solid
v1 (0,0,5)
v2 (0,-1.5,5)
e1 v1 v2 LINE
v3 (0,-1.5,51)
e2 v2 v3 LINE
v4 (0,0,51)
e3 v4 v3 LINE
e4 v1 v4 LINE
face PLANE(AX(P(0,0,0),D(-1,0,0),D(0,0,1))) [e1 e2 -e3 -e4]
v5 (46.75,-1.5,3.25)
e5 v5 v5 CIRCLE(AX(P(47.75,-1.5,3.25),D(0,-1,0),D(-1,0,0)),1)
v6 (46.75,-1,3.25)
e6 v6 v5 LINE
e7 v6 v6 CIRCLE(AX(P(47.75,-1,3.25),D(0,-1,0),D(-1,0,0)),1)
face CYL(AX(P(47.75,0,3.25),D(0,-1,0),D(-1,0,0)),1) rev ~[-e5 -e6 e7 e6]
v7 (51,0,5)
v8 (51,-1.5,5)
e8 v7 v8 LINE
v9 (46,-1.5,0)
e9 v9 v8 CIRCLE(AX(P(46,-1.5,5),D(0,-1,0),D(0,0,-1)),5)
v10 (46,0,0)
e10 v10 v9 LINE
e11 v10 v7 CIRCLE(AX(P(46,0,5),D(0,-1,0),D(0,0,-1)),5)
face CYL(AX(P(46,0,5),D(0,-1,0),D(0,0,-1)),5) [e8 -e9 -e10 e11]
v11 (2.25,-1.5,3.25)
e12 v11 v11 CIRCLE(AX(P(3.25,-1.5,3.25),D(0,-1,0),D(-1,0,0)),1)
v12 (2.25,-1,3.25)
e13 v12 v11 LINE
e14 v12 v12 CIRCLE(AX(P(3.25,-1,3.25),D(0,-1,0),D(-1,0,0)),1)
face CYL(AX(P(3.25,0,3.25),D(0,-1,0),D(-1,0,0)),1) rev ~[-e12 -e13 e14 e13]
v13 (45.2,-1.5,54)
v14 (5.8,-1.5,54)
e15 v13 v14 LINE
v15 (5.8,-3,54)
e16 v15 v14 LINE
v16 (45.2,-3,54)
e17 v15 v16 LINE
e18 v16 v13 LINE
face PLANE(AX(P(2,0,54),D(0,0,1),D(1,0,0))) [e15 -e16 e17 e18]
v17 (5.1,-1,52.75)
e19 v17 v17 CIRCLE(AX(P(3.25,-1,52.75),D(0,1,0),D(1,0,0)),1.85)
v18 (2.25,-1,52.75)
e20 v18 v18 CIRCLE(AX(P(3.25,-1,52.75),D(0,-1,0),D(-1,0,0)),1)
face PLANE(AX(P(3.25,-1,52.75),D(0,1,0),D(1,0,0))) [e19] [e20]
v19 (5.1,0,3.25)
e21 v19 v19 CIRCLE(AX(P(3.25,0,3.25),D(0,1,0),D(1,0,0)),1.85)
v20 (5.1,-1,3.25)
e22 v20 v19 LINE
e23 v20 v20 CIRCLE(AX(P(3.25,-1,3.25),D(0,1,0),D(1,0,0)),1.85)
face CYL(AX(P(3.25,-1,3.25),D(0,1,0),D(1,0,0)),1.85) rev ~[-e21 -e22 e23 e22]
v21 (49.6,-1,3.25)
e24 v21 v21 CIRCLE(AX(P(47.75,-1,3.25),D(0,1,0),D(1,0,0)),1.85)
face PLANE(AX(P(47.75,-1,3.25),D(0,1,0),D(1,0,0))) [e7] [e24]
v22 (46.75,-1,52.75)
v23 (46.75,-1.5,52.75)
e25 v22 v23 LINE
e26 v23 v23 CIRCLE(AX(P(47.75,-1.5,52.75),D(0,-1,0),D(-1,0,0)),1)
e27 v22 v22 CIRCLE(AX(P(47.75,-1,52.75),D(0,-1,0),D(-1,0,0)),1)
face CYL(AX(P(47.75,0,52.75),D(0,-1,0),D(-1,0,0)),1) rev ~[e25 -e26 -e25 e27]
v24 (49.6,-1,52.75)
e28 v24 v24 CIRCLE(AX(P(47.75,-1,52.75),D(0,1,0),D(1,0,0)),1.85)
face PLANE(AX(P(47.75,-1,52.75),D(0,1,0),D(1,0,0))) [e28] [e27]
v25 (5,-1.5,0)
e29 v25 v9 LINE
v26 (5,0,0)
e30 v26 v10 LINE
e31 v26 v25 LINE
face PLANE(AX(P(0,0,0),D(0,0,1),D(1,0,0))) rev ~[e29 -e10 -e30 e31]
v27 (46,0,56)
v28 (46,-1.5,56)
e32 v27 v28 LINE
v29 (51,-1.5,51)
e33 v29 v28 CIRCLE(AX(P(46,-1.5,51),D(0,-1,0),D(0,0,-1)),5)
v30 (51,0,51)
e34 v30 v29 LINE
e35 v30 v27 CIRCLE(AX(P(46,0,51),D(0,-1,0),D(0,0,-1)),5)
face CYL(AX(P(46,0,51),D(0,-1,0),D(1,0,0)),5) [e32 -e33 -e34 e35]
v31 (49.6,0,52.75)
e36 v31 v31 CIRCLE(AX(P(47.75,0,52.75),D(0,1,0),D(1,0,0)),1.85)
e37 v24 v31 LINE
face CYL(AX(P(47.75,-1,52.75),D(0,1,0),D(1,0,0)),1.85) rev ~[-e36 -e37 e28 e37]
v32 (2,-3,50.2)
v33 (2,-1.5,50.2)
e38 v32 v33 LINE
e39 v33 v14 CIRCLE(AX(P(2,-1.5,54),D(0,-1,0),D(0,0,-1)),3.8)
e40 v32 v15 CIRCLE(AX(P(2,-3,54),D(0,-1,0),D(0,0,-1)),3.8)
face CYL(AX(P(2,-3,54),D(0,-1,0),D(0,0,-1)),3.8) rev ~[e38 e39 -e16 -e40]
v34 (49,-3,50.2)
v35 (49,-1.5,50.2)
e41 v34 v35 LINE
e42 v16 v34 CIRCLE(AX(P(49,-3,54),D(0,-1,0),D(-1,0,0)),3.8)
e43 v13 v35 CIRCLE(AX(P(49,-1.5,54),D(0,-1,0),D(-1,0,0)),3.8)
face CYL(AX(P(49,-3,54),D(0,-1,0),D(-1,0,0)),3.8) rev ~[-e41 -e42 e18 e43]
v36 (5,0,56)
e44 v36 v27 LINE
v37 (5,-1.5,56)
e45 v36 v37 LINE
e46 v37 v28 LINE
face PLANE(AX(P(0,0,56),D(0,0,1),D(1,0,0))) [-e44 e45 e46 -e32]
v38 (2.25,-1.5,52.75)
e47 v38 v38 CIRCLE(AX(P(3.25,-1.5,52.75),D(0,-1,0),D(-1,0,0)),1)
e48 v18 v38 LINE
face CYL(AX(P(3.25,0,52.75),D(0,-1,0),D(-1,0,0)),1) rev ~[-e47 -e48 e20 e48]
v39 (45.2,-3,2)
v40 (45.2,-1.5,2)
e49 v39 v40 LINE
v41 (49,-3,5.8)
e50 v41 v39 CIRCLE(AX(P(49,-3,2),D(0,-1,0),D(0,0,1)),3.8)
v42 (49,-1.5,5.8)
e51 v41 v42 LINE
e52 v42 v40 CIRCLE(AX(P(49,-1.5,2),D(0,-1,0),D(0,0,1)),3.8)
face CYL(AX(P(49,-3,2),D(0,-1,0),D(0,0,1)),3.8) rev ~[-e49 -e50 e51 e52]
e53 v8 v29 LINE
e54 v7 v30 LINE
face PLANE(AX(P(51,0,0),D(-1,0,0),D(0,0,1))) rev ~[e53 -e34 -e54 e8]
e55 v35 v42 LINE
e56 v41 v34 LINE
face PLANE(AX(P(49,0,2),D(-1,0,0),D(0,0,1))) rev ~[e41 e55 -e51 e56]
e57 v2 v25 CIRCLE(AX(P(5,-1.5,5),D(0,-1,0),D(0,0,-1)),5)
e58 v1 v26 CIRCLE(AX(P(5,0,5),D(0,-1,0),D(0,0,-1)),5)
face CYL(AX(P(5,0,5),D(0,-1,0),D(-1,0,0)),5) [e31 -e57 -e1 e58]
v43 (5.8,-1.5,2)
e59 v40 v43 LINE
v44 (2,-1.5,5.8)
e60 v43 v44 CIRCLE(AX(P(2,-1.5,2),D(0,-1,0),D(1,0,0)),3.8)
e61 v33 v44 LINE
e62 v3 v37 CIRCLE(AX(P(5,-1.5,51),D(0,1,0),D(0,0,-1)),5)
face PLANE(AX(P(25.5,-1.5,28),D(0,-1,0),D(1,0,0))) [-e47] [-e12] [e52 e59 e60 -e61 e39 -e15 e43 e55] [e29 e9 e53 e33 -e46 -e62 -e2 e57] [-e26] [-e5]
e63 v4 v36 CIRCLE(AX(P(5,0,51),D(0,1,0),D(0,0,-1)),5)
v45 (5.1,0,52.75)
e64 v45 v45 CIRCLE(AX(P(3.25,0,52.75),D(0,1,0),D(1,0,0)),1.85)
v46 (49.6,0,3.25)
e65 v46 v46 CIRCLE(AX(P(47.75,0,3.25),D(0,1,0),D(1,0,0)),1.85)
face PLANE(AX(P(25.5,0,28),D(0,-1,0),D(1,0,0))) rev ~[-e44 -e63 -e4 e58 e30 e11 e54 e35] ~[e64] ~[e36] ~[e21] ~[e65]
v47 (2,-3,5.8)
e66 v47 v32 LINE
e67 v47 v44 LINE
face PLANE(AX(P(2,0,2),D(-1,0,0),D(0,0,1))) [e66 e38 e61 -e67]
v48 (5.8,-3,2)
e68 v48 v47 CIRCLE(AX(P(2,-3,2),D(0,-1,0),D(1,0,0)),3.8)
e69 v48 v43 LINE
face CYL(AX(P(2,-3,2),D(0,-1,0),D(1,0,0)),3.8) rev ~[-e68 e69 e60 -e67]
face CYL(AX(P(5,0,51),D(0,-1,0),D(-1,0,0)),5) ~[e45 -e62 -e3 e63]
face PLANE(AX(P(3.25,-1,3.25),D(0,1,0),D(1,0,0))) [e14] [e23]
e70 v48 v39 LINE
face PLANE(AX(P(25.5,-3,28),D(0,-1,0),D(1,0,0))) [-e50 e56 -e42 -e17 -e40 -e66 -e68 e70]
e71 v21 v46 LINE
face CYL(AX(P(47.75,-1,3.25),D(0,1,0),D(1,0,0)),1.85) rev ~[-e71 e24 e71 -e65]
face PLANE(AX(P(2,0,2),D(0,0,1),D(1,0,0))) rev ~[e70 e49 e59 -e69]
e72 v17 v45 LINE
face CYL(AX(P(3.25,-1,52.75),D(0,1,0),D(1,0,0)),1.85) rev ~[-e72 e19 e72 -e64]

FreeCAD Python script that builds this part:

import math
import FreeCAD as App
import Part
import Sketcher
from FreeCAD import Vector
Q = App.Units.Quantity


def edges_at(feature, points):
    """Names of the edges that pass closest to the given points."""
    edges = feature.Shape.Edges
    near = lambda p: min(range(len(edges)), key=lambda i: edges[i].distToShape(Part.Vertex(*p))[0])
    return sorted({f"Edge{near(p) + 1}" for p in points})

doc = App.newDocument("Part")
body = doc.addObject("PartDesign::Body", "Body")

sketch1 = doc.addObject("Sketcher::SketchObject", "Sketch")
body.addObject(sketch1)
sketch1.AttachmentSupport = (doc.XZ_Plane, [""])
sketch1.MapMode = "FlatFace"
sketch1.addGeometry(Part.LineSegment(Vector(0, 56, 0), Vector(0, 0, 0)), False)
sketch1.addGeometry(Part.LineSegment(Vector(0, 0, 0), Vector(51, 0, 0)), False)
sketch1.addGeometry(Part.LineSegment(Vector(51, 0, 0), Vector(51, 56, 0)), False)
sketch1.addGeometry(Part.LineSegment(Vector(51, 56, 0), Vector(0, 56, 0)), False)
sketch1.addConstraint(Sketcher.Constraint("Coincident", 0, 2, 1, 1))
sketch1.addConstraint(Sketcher.Constraint("Coincident", 1, 2, 2, 1))
sketch1.addConstraint(Sketcher.Constraint("Coincident", 2, 2, 3, 1))
sketch1.addConstraint(Sketcher.Constraint("Coincident", 3, 2, 0, 1))
sketch1.addConstraint(Sketcher.Constraint("Vertical", 0))
sketch1.addConstraint(Sketcher.Constraint("Horizontal", 1))
sketch1.addConstraint(Sketcher.Constraint("Vertical", 2))
sketch1.addConstraint(Sketcher.Constraint("Horizontal", 3))
sketch1.addConstraint(Sketcher.Constraint("Coincident", 0, 2, -1, 1))
sketch1.addConstraint(Sketcher.Constraint("DistanceX", 1, 1, 1, 2, Q("51 mm")))
sketch1.addConstraint(Sketcher.Constraint("DistanceY", 0, 2, 0, 1, Q("56 mm")))
pad1 = doc.addObject("PartDesign::Pad", "Pad")
body.addObject(pad1)
pad1.Profile = sketch1
pad1.Length = 1.5
doc.recompute()

fillet = doc.addObject("PartDesign::Fillet", "Fillet")
body.addObject(fillet)
fillet.Base = (pad1, edges_at(pad1, [
    (0, -0.75, 56),
    (51, -0.75, 56),
    (51, -0.75, 0),
    (0, -0.75, 0),
]))
fillet.Radius = 5

sketch2 = doc.addObject("Sketcher::SketchObject", "Sketch001")
body.addObject(sketch2)
sketch2.AttachmentSupport = (doc.XZ_Plane, [""])
sketch2.MapMode = "FlatFace"
sketch2.addGeometry(Part.LineSegment(Vector(2, 54, 0), Vector(2, 2, 0)), False)
sketch2.addGeometry(Part.LineSegment(Vector(2, 2, 0), Vector(49, 2, 0)), False)
sketch2.addGeometry(Part.LineSegment(Vector(49, 2, 0), Vector(49, 54, 0)), False)
sketch2.addGeometry(Part.LineSegment(Vector(49, 54, 0), Vector(2, 54, 0)), False)
sketch2.addConstraint(Sketcher.Constraint("Coincident", 0, 2, 1, 1))
sketch2.addConstraint(Sketcher.Constraint("Coincident", 1, 2, 2, 1))
sketch2.addConstraint(Sketcher.Constraint("Coincident", 2, 2, 3, 1))
sketch2.addConstraint(Sketcher.Constraint("Coincident", 3, 2, 0, 1))
sketch2.addConstraint(Sketcher.Constraint("Vertical", 0))
sketch2.addConstraint(Sketcher.Constraint("Horizontal", 1))
sketch2.addConstraint(Sketcher.Constraint("Vertical", 2))
sketch2.addConstraint(Sketcher.Constraint("Horizontal", 3))
sketch2.addConstraint(Sketcher.Constraint("DistanceX", 1, 1, 1, 2, Q("47 mm")))
sketch2.addConstraint(Sketcher.Constraint("DistanceY", 0, 2, 0, 1, Q("52 mm")))
sketch2.addConstraint(Sketcher.Constraint("DistanceX", -1, 1, 0, 2, Q("2 mm")))
sketch2.addConstraint(Sketcher.Constraint("DistanceY", -1, 1, 0, 2, Q("2 mm")))
pad2 = doc.addObject("PartDesign::Pad", "Pad001")
body.addObject(pad2)
pad2.Profile = sketch2
pad2.Length = 3

sketch3 = doc.addObject("Sketcher::SketchObject", "Sketch002")
body.addObject(sketch3)
sketch3.AttachmentSupport = (doc.XZ_Plane, [""])
sketch3.MapMode = "FlatFace"
sketch3.addGeometry(Part.Circle(Vector(47.8, 52.8, 0), Vector(0, 0, 1), 1), False)
sketch3.addGeometry(Part.Circle(Vector(3.2, 52.8, 0), Vector(0, 0, 1), 1), False)
sketch3.addGeometry(Part.Circle(Vector(47.8, 3.2, 0), Vector(0, 0, 1), 1), False)
sketch3.addGeometry(Part.Circle(Vector(3.2, 3.2, 0), Vector(0, 0, 1), 1), False)
sketch3.addConstraint(Sketcher.Constraint("Equal", 0, 1))
sketch3.addConstraint(Sketcher.Constraint("Equal", 1, 2))
sketch3.addConstraint(Sketcher.Constraint("Equal", 2, 3))
sketch3.addConstraint(Sketcher.Constraint("Horizontal", 0, 3, 1, 3))
sketch3.addConstraint(Sketcher.Constraint("Horizontal", 2, 3, 3, 3))
sketch3.addConstraint(Sketcher.Constraint("Vertical", 0, 3, 2, 3))
sketch3.addConstraint(Sketcher.Constraint("Vertical", 1, 3, 3, 3))
sketch3.addConstraint(Sketcher.Constraint("Diameter", 0, Q("2 mm")))
sketch3.addConstraint(Sketcher.Constraint("DistanceX", 1, 3, 0, 3, Q("44.5 mm")))
sketch3.addConstraint(Sketcher.Constraint("DistanceY", 2, 3, 0, 3, Q("49.5 mm")))
sketch3.addConstraint(Sketcher.Constraint("DistanceX", -1, 1, 0, 3, Q("47.75 mm")))
sketch3.addConstraint(Sketcher.Constraint("DistanceY", -1, 1, 0, 3, Q("52.75 mm")))
doc.recompute()
hole = doc.addObject("PartDesign::Hole", "Hole")
body.addObject(hole)
hole.Profile = sketch3
hole.ThreadType = "None"
hole.Diameter = 2
hole.DepthType = "ThroughAll"
hole.HoleCutType = "Counterbore"
hole.HoleCutDiameter = 3.7
hole.HoleCutDepth = 1
hole.Reversed = True

sketch4 = doc.addObject("Sketcher::SketchObject", "Sketch003")
body.addObject(sketch4)
sketch4.AttachmentSupport = (doc.XZ_Plane, [""])
sketch4.MapMode = "FlatFace"
sketch4.AttachmentOffset = App.Placement(Vector(0, 0, 3), App.Rotation())
sketch4.addGeometry(Part.LineSegment(Vector(2, 54, 0), Vector(2, 50.2, 0)), False)
sketch4.addGeometry(Part.ArcOfCircle(Part.Circle(Vector(2, 54, 0), Vector(0, 0, 1), 3.8), math.radians(-90), math.radians(0)), False)
sketch4.addGeometry(Part.LineSegment(Vector(5.8, 54, 0), Vector(2, 54, 0)), False)
sketch4.addGeometry(Part.ArcOfCircle(Part.Circle(Vector(49, 54, 0), Vector(0, 0, 1), 3.8), math.radians(180), math.radians(270)), False)
sketch4.addGeometry(Part.LineSegment(Vector(49, 50.2, 0), Vector(49, 54, 0)), False)
sketch4.addGeometry(Part.LineSegment(Vector(49, 54, 0), Vector(45.2, 54, 0)), False)
sketch4.addGeometry(Part.LineSegment(Vector(49, 2, 0), Vector(49, 5.8, 0)), False)
sketch4.addGeometry(Part.ArcOfCircle(Part.Circle(Vector(49, 2, 0), Vector(0, 0, 1), 3.8), math.radians(90), math.radians(180)), False)
sketch4.addGeometry(Part.LineSegment(Vector(45.2, 2, 0), Vector(49, 2, 0)), False)
sketch4.addGeometry(Part.ArcOfCircle(Part.Circle(Vector(2, 2, 0), Vector(0, 0, 1), 3.8), math.radians(0), math.radians(90)), False)
sketch4.addGeometry(Part.LineSegment(Vector(2, 5.8, 0), Vector(2, 2, 0)), False)
sketch4.addGeometry(Part.LineSegment(Vector(2, 2, 0), Vector(5.8, 2, 0)), False)
sketch4.addConstraint(Sketcher.Constraint("Coincident", 0, 2, 1, 1))
sketch4.addConstraint(Sketcher.Constraint("Coincident", 1, 2, 2, 1))
sketch4.addConstraint(Sketcher.Constraint("Coincident", 2, 2, 0, 1))
sketch4.addConstraint(Sketcher.Constraint("Coincident", 3, 2, 4, 1))
sketch4.addConstraint(Sketcher.Constraint("Coincident", 4, 2, 5, 1))
sketch4.addConstraint(Sketcher.Constraint("Coincident", 5, 2, 3, 1))
sketch4.addConstraint(Sketcher.Constraint("Coincident", 6, 2, 7, 1))
sketch4.addConstraint(Sketcher.Constraint("Coincident", 7, 2, 8, 1))
sketch4.addConstraint(Sketcher.Constraint("Coincident", 8, 2, 6, 1))
sketch4.addConstraint(Sketcher.Constraint("Coincident", 9, 2, 10, 1))
sketch4.addConstraint(Sketcher.Constraint("Coincident", 10, 2, 11, 1))
sketch4.addConstraint(Sketcher.Constraint("Coincident", 11, 2, 9, 1))
sketch4.addConstraint(Sketcher.Constraint("Vertical", 0))
sketch4.addConstraint(Sketcher.Constraint("Horizontal", 2))
sketch4.addConstraint(Sketcher.Constraint("Vertical", 4))
sketch4.addConstraint(Sketcher.Constraint("Horizontal", 5))
sketch4.addConstraint(Sketcher.Constraint("Vertical", 6))
sketch4.addConstraint(Sketcher.Constraint("Horizontal", 8))
sketch4.addConstraint(Sketcher.Constraint("Vertical", 10))
sketch4.addConstraint(Sketcher.Constraint("Horizontal", 11))
sketch4.addConstraint(Sketcher.Constraint("Coincident", 2, 2, 1, 3))
sketch4.addConstraint(Sketcher.Constraint("Coincident", 4, 2, 3, 3))
sketch4.addConstraint(Sketcher.Constraint("Coincident", 8, 2, 7, 3))
sketch4.addConstraint(Sketcher.Constraint("Coincident", 10, 2, 9, 3))
sketch4.addConstraint(Sketcher.Constraint("Equal", 1, 3))
sketch4.addConstraint(Sketcher.Constraint("Equal", 3, 7))
sketch4.addConstraint(Sketcher.Constraint("Equal", 7, 9))
sketch4.addConstraint(Sketcher.Constraint("Horizontal", 1, 3, 3, 3))
sketch4.addConstraint(Sketcher.Constraint("Horizontal", 7, 3, 9, 3))
sketch4.addConstraint(Sketcher.Constraint("Vertical", 3, 3, 7, 3))
sketch4.addConstraint(Sketcher.Constraint("Vertical", 1, 3, 9, 3))
sketch4.addConstraint(Sketcher.Constraint("Radius", 1, Q("3.8 mm")))
sketch4.addConstraint(Sketcher.Constraint("DistanceX", -1, 1, 1, 3, Q("2 mm")))
sketch4.addConstraint(Sketcher.Constraint("DistanceY", -1, 1, 1, 3, Q("54 mm")))
sketch4.addConstraint(Sketcher.Constraint("DistanceX", -1, 1, 3, 3, Q("49 mm")))
sketch4.addConstraint(Sketcher.Constraint("DistanceY", -1, 1, 7, 3, Q("2 mm")))
pocket1 = doc.addObject("PartDesign::Pocket", "Pocket")
body.addObject(pocket1)
pocket1.Profile = sketch4
pocket1.Length = 1.5

doc.recompute()
